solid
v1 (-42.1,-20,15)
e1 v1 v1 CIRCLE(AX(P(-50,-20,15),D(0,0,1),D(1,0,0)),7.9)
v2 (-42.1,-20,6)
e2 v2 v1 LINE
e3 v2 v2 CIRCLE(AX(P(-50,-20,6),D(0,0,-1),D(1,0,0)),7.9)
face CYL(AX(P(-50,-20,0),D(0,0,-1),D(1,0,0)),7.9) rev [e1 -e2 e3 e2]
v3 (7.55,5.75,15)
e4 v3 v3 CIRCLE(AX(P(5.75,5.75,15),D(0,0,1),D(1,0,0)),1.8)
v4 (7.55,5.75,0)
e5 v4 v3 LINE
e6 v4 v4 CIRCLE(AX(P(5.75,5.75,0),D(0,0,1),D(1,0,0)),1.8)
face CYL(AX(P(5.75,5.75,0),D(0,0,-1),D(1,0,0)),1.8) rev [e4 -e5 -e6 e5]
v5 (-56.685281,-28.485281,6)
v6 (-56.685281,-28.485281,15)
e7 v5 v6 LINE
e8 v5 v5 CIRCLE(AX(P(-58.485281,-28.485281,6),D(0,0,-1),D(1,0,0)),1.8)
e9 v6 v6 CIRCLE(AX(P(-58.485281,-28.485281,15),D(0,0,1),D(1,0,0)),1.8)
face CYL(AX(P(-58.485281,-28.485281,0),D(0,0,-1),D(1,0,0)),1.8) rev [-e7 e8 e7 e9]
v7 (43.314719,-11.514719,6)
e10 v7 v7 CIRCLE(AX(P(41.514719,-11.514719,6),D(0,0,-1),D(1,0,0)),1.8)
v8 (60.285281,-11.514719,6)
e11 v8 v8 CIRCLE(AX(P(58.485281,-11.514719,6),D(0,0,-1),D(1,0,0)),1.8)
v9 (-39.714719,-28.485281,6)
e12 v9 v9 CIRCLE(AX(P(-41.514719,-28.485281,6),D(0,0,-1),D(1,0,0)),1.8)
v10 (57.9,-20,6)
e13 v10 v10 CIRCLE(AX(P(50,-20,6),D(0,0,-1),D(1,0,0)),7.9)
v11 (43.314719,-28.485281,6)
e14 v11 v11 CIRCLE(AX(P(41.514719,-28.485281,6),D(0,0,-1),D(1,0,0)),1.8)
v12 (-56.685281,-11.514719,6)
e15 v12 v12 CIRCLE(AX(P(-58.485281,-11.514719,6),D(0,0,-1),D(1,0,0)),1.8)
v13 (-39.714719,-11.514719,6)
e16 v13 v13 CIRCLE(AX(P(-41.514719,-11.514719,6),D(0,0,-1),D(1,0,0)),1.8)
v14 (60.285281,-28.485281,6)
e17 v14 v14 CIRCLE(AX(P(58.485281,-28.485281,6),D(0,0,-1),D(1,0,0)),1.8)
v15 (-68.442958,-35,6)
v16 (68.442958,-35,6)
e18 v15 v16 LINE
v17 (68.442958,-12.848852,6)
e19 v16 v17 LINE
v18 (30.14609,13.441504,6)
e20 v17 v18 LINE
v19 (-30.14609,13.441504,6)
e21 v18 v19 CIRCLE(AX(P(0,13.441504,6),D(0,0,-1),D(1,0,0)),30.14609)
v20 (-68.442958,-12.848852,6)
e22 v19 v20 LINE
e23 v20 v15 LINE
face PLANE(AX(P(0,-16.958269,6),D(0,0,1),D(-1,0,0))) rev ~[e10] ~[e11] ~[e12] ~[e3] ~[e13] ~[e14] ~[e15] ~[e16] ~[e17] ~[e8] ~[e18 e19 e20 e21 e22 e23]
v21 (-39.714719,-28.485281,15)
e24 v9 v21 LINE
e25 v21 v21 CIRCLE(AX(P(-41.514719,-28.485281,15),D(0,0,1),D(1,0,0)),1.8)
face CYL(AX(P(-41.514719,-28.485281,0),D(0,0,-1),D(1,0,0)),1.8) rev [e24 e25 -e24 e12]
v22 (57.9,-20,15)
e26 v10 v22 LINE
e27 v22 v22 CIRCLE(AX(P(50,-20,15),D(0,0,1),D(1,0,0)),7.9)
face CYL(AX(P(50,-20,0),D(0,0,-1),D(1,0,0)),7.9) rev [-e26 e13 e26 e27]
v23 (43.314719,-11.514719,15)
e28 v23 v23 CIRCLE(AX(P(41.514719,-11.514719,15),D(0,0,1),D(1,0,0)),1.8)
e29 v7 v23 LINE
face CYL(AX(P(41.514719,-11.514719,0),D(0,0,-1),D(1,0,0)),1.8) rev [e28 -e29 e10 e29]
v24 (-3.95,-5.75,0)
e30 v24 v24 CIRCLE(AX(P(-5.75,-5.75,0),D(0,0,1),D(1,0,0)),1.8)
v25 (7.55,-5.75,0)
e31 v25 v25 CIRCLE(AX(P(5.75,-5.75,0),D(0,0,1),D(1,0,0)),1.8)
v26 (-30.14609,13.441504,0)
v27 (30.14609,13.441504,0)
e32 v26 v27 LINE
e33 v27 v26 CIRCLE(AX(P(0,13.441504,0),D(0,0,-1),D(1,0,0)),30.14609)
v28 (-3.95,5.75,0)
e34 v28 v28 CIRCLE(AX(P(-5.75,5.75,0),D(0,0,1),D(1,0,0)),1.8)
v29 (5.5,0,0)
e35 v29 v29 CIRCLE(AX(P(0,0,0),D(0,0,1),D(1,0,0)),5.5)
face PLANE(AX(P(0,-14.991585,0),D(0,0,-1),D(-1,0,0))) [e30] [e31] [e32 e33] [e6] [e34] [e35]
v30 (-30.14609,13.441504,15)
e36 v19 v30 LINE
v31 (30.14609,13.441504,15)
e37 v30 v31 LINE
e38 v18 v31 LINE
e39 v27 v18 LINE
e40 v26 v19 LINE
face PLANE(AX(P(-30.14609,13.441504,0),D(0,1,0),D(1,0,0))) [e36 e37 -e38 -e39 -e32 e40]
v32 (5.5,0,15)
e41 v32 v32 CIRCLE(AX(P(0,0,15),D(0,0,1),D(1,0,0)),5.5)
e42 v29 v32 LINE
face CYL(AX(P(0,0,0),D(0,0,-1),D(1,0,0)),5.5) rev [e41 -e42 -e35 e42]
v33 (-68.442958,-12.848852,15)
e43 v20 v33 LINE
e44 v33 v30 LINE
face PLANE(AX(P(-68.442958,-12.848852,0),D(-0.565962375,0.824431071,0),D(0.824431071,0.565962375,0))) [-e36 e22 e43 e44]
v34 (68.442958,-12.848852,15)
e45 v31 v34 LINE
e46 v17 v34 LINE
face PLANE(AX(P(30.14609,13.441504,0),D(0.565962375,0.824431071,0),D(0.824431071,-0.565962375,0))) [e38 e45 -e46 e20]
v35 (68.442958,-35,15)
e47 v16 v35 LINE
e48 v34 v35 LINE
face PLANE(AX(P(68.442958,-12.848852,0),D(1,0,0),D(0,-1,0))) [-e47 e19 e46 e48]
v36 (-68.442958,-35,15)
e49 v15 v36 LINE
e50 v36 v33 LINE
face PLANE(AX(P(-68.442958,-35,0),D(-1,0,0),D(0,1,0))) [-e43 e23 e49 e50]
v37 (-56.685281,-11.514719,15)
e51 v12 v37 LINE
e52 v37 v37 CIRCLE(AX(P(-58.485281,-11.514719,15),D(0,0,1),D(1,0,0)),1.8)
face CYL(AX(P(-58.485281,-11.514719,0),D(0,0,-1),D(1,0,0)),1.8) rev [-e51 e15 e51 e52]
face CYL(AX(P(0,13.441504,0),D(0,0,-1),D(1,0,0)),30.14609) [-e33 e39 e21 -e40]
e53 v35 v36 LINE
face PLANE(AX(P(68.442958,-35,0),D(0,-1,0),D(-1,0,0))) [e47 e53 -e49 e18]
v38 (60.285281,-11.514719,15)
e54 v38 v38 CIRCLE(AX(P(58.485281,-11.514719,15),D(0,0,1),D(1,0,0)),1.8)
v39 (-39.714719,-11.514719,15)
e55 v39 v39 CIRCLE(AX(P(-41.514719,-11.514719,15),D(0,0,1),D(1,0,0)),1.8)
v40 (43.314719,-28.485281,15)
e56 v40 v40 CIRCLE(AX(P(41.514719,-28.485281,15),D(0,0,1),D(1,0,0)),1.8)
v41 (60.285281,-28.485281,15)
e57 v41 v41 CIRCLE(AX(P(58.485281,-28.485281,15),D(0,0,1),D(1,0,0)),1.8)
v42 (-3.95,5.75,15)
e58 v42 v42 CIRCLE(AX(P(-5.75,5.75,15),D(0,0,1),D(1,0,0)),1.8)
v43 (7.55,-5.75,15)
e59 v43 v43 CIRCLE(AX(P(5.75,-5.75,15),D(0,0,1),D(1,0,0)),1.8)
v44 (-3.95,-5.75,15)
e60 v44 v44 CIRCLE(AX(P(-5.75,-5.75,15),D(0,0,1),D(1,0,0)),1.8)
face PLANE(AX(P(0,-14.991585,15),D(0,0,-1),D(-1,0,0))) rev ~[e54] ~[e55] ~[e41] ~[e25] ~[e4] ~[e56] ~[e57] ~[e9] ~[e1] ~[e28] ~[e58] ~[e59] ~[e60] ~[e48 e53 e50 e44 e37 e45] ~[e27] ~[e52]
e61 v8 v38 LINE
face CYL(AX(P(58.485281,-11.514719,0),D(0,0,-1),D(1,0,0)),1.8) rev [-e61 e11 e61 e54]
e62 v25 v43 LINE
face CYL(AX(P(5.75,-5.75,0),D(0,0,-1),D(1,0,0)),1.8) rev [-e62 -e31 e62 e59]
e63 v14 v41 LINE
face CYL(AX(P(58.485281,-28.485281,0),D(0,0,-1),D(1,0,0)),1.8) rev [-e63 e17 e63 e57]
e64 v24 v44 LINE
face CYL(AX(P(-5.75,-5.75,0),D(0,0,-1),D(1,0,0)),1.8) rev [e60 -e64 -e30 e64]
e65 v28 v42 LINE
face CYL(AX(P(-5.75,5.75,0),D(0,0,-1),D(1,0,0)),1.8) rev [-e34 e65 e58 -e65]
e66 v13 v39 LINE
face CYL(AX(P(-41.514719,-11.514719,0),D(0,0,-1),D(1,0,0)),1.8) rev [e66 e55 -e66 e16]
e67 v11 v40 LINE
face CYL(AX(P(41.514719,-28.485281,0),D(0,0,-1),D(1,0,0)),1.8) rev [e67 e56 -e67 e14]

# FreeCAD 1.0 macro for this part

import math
import FreeCAD as App
import Part
import Sketcher

V = App.Vector
Q = App.Units.Quantity


def add_polygon(sketch, points):
    """Adds a closed chain of lines whose ends are joined by coincident constraints."""
    first, n = sketch.GeometryCount, len(points)
    for a, b in zip(points, points[1:] + points[:1]):
        sketch.addGeometry(Part.LineSegment(App.Vector(*a, 0), App.Vector(*b, 0)), False)
    for i in range(n):
        sketch.addConstraint(Sketcher.Constraint("Coincident", first + i, 2, first + (i + 1) % n, 1))

doc = App.newDocument("Part")
body = doc.addObject("PartDesign::Body", "Body")

# Sketch on XY plane
sketch1 = body.newObject("Sketcher::SketchObject", "Sketch")
sketch1.AttachmentSupport = (doc.getObject("XY_Plane"), [""])
sketch1.MapMode = "FlatFace"
add_polygon(sketch1, [(-30.14609, 13.441504), (-68.442958, -12.848852), (-68.442958, -35), (68.442958, -35), (68.442958, -12.848852), (30.14609, 13.441504)])  # lines 0-5
sketch1.addGeometry(Part.Circle(V(58.485281, -28.485281, 0), V(0, 0, 1), 1.8), False)  # 6
sketch1.addGeometry(Part.Circle(V(41.514719, -28.485281, 0), V(0, 0, 1), 1.8), False)  # 7
sketch1.addGeometry(Part.Circle(V(50, -20, 0), V(0, 0, 1), 7.9), False)  # 8
sketch1.addGeometry(Part.Circle(V(58.485281, -11.514719, 0), V(0, 0, 1), 1.8), False)  # 9
sketch1.addGeometry(Part.Circle(V(41.514719, -11.514719, 0), V(0, 0, 1), 1.8), False)  # 10
sketch1.addGeometry(Part.Circle(V(-41.514719, -28.485281, 0), V(0, 0, 1), 1.8), False)  # 11
sketch1.addGeometry(Part.Circle(V(-58.485281, -28.485281, 0), V(0, 0, 1), 1.8), False)  # 12
sketch1.addGeometry(Part.Circle(V(-50, -20, 0), V(0, 0, 1), 7.9), False)  # 13
sketch1.addGeometry(Part.Circle(V(-41.514719, -11.514719, 0), V(0, 0, 1), 1.8), False)  # 14
sketch1.addGeometry(Part.Circle(V(-58.485281, -11.514719, 0), V(0, 0, 1), 1.8), False)  # 15
sketch1.addGeometry(Part.Circle(V(5.75, -5.75, 0), V(0, 0, 1), 1.8), False)  # 16
sketch1.addGeometry(Part.Circle(V(5.75, 5.75, 0), V(0, 0, 1), 1.8), False)  # 17
sketch1.addGeometry(Part.Circle(V(-5.75, -5.75, 0), V(0, 0, 1), 1.8), False)  # 18
sketch1.addGeometry(Part.Circle(V(0, 0, 0), V(0, 0, 1), 5.5), False)  # 19
sketch1.addGeometry(Part.Circle(V(-5.75, 5.75, 0), V(0, 0, 1), 1.8), False)  # 20
sketch1.addConstraint([
    Sketcher.Constraint("Vertical", 1),
    Sketcher.Constraint("Horizontal", 2),
    Sketcher.Constraint("Vertical", 3),
    Sketcher.Constraint("Horizontal", 5),
    Sketcher.Constraint("Coincident", 19, 3, -1, 1),
    Sketcher.Constraint("Equal", 6, 7),
    Sketcher.Constraint("Equal", 7, 9),
    Sketcher.Constraint("Equal", 9, 10),
    Sketcher.Constraint("Equal", 10, 11),
    Sketcher.Constraint("Equal", 11, 12),
    Sketcher.Constraint("Equal", 8, 13),
    Sketcher.Constraint("Equal", 12, 14),
    Sketcher.Constraint("Equal", 14, 15),
    Sketcher.Constraint("Equal", 15, 16),
    Sketcher.Constraint("Equal", 16, 17),
    Sketcher.Constraint("Equal", 17, 18),
    Sketcher.Constraint("Equal", 18, 20),
    Sketcher.Constraint("Symmetric", 17, 3, 18, 3, -1, 1),
    Sketcher.Constraint("Symmetric", 16, 3, 20, 3, -1, 1),
    Sketcher.Constraint("Symmetric", 7, 3, 11, 3, -2),
    Sketcher.Constraint("Symmetric", 6, 3, 12, 3, -2),
    Sketcher.Constraint("Symmetric", 8, 3, 13, 3, -2),
    Sketcher.Constraint("Symmetric", 10, 3, 14, 3, -2),
    Sketcher.Constraint("Symmetric", 9, 3, 15, 3, -2),
    Sketcher.Constraint("Symmetric", 16, 3, 18, 3, -2),
    Sketcher.Constraint("Symmetric", 0, 2, 3, 2, -2),
    Sketcher.Constraint("Horizontal", 6, 3, 7, 3),
    Sketcher.Constraint("Horizontal", 9, 3, 10, 3),
    Sketcher.Constraint("Vertical", 6, 3, 9, 3),
    Sketcher.Constraint("Vertical", 7, 3, 10, 3),
    Sketcher.Constraint("Equal", 0, 4),
    Sketcher.Constraint("Diameter", 19, Q("11 mm")),
    Sketcher.Constraint("Diameter", 6, Q("3.6 mm")),
    Sketcher.Constraint("Diameter", 8, Q("15.8 mm")),
    Sketcher.Constraint("DistanceX", -1, 1, 8, 3, Q("50 mm")),
    Sketcher.Constraint("DistanceY", 8, 3, -1, 1, Q("20 mm")),
    Sketcher.Constraint("DistanceY", 1, 2, -1, 1, Q("35 mm")),
    Sketcher.Constraint("DistanceX", 11, 3, 6, 3, Q("100 mm")),
    Sketcher.Constraint("DistanceY", 16, 3, 17, 3, Q("11.5 mm")),
    Sketcher.Constraint("DistanceX", 18, 3, 16, 3, Q("11.5 mm")),
    Sketcher.Constraint("DistanceX", 5, 2, 5, 1, Q("60.29218 mm")),
    Sketcher.Constraint("Distance", 0, Q("46.45248 mm")),
    Sketcher.Constraint("DistanceX", 2, 1, 2, 2, Q("136.885916 mm")),
    Sketcher.Constraint("DistanceY", 1, 2, 1, 1, Q("22.151148 mm")),
    Sketcher.Constraint("DistanceX", -1, 1, 6, 3, Q("58.485281 mm")),
    Sketcher.Constraint("DistanceY", 6, 3, -1, 1, Q("28.485281 mm")),
    Sketcher.Constraint("DistanceY", 9, 3, -1, 1, Q("11.514719 mm")),
])
pad1 = body.newObject("PartDesign::Pad", "Pad")
pad1.Profile = sketch1
pad1.Length = 15

# Sketch on XY plane
sketch2 = body.newObject("Sketcher::SketchObject", "Sketch001")
sketch2.AttachmentSupport = (doc.getObject("XY_Plane"), [""])
sketch2.MapMode = "FlatFace"
sketch2.addGeometry([
    Part.LineSegment(V(-68.442958, -12.848852, 0), V(-30.14609, 13.441504, 0)),  # 0
    Part.ArcOfCircle(Part.Circle(V(0, 13.441504, 0), V(0, 0, 1), 30.14609), math.radians(180), math.radians(360)),  # 1
    Part.LineSegment(V(30.14609, 13.441504, 0), V(68.442958, -12.848852, 0)),  # 2
    Part.LineSegment(V(68.442958, -12.848852, 0), V(68.442958, -35, 0)),  # 3
    Part.LineSegment(V(68.442958, -35, 0), V(-68.442958, -35, 0)),  # 4
    Part.LineSegment(V(-68.442958, -35, 0), V(-68.442958, -12.848852, 0)),  # 5
], False)
sketch2.addConstraint([
    Sketcher.Constraint("Coincident", 0, 2, 1, 1),
    Sketcher.Constraint("Coincident", 1, 2, 2, 1),
    Sketcher.Constraint("Coincident", 2, 2, 3, 1),
    Sketcher.Constraint("Coincident", 3, 2, 4, 1),
    Sketcher.Constraint("Coincident", 4, 2, 5, 1),
    Sketcher.Constraint("Coincident", 5, 2, 0, 1),
    Sketcher.Constraint("Vertical", 3),
    Sketcher.Constraint("Horizontal", 4),
    Sketcher.Constraint("Vertical", 5),
    Sketcher.Constraint("Symmetric", 0, 2, 1, 2, -2),
    Sketcher.Constraint("Symmetric", 2, 2, 5, 2, -2),
    Sketcher.Constraint("Horizontal", 1, 3, 0, 2),
    Sketcher.Constraint("DistanceY", 3, 2, -1, 1, Q("35 mm")),
    Sketcher.Constraint("Radius", 1, Q("30.14609 mm")),
    Sketcher.Constraint("Distance", 0, Q("46.45248 mm")),
    Sketcher.Constraint("DistanceX", 4, 2, 4, 1, Q("136.885916 mm")),
    Sketcher.Constraint("DistanceY", 3, 2, 3, 1, Q("22.151148 mm")),
])
pocket1 = body.newObject("PartDesign::Pocket", "Pocket")
pocket1.Profile = sketch2
pocket1.Length = 6
pocket1.Reversed = True

doc.recompute()
